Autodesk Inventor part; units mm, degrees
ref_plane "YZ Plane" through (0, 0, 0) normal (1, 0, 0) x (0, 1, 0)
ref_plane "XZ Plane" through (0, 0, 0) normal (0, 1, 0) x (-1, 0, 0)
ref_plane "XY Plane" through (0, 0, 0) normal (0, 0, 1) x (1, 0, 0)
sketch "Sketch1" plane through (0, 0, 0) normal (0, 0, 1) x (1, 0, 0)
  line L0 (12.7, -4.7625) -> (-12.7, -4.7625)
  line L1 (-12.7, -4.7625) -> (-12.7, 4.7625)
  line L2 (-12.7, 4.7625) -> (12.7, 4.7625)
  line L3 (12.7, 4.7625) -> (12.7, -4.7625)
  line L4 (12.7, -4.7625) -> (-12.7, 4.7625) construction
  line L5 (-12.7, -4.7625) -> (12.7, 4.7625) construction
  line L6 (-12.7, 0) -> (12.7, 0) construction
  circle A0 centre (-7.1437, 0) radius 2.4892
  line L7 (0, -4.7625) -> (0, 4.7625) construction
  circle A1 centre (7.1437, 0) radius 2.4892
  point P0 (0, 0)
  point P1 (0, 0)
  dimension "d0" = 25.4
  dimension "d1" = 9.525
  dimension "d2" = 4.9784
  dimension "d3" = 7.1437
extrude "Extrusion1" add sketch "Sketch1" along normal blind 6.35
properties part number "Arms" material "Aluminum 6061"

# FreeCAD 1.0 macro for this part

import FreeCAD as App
import Part
import Sketcher
Q = App.Units.Quantity


def add_polygon(sketch, points):
    """Adds a closed chain of lines whose ends are joined by coincident constraints."""
    first, n = sketch.GeometryCount, len(points)
    for a, b in zip(points, points[1:] + points[:1]):
        sketch.addGeometry(Part.LineSegment(App.Vector(*a, 0), App.Vector(*b, 0)), False)
    for i in range(n):
        sketch.addConstraint(Sketcher.Constraint("Coincident", first + i, 2, first + (i + 1) % n, 1))

doc = App.newDocument("Part")
params = doc.addObject("Spreadsheet::Sheet", "Params")
for row, (alias, value) in enumerate([
    ("sketch1_width", "1 in"),
    ("sketch1_diameter", "0.196 in"),
    ("sketch1_height", "0.375 in"),
    ("pad1_length", "0.25 in"),
], start=1):
    params.set(f"A{row}", alias)
    params.set(f"B{row}", "=" + value)
    params.setAlias(f"B{row}", alias)

body = doc.addObject("PartDesign::Body", "Body")

# Sketch on XY plane
sketch1 = body.newObject("Sketcher::SketchObject", "Sketch")
sketch1.AttachmentSupport = (doc.getObject("XY_Plane"), [""])
sketch1.MapMode = "FlatFace"
add_polygon(sketch1, [(-12.7, -4.7625), (12.7, -4.7625), (12.7, 4.7625), (-12.7, 4.7625)])  # lines 0-3
sketch1.addGeometry(Part.Circle(App.Vector(-7.1437, 0, 0), App.Vector(0, 0, 1), 2.4892), False)  # 4
sketch1.addGeometry(Part.Circle(App.Vector(7.1437, 0, 0), App.Vector(0, 0, 1), 2.4892), False)  # 5
sketch1.addConstraint(Sketcher.Constraint("Horizontal", 0))
sketch1.addConstraint(Sketcher.Constraint("Vertical", 1))
sketch1.addConstraint(Sketcher.Constraint("Horizontal", 2))
sketch1.addConstraint(Sketcher.Constraint("Vertical", 3))
sketch1.addConstraint(Sketcher.Constraint("Equal", 4, 5))
sketch1.addConstraint(Sketcher.Constraint("Symmetric", 4, 3, 5, 3, -1, 1))
sketch1.addConstraint(Sketcher.Constraint("Symmetric", 0, 2, 2, 2, -1, 1))
sketch1.addConstraint(Sketcher.Constraint("PointOnObject", 4, 3, -1))
sketch1.addConstraint(Sketcher.Constraint("DistanceX", 0, 1, 0, 2, Q("1 in")))
sketch1.addConstraint(Sketcher.Constraint("Diameter", 4, Q("0.196 in")))
sketch1.addConstraint(Sketcher.Constraint("DistanceY", 1, 1, 1, 2, Q("0.375 in")))
sketch1.addConstraint(Sketcher.Constraint("DistanceX", 4, 3, -1, 1, Q("0.281248 in")))
sketch1.setExpression("Constraints[12]", "Params.sketch1_width")
sketch1.setExpression("Constraints[13]", "Params.sketch1_diameter")
sketch1.setExpression("Constraints[14]", "Params.sketch1_height")
pad1 = body.newObject("PartDesign::Pad", "Pad")
pad1.Profile = sketch1
pad1.setExpression("Length", "Params.pad1_length")

doc.recompute()
